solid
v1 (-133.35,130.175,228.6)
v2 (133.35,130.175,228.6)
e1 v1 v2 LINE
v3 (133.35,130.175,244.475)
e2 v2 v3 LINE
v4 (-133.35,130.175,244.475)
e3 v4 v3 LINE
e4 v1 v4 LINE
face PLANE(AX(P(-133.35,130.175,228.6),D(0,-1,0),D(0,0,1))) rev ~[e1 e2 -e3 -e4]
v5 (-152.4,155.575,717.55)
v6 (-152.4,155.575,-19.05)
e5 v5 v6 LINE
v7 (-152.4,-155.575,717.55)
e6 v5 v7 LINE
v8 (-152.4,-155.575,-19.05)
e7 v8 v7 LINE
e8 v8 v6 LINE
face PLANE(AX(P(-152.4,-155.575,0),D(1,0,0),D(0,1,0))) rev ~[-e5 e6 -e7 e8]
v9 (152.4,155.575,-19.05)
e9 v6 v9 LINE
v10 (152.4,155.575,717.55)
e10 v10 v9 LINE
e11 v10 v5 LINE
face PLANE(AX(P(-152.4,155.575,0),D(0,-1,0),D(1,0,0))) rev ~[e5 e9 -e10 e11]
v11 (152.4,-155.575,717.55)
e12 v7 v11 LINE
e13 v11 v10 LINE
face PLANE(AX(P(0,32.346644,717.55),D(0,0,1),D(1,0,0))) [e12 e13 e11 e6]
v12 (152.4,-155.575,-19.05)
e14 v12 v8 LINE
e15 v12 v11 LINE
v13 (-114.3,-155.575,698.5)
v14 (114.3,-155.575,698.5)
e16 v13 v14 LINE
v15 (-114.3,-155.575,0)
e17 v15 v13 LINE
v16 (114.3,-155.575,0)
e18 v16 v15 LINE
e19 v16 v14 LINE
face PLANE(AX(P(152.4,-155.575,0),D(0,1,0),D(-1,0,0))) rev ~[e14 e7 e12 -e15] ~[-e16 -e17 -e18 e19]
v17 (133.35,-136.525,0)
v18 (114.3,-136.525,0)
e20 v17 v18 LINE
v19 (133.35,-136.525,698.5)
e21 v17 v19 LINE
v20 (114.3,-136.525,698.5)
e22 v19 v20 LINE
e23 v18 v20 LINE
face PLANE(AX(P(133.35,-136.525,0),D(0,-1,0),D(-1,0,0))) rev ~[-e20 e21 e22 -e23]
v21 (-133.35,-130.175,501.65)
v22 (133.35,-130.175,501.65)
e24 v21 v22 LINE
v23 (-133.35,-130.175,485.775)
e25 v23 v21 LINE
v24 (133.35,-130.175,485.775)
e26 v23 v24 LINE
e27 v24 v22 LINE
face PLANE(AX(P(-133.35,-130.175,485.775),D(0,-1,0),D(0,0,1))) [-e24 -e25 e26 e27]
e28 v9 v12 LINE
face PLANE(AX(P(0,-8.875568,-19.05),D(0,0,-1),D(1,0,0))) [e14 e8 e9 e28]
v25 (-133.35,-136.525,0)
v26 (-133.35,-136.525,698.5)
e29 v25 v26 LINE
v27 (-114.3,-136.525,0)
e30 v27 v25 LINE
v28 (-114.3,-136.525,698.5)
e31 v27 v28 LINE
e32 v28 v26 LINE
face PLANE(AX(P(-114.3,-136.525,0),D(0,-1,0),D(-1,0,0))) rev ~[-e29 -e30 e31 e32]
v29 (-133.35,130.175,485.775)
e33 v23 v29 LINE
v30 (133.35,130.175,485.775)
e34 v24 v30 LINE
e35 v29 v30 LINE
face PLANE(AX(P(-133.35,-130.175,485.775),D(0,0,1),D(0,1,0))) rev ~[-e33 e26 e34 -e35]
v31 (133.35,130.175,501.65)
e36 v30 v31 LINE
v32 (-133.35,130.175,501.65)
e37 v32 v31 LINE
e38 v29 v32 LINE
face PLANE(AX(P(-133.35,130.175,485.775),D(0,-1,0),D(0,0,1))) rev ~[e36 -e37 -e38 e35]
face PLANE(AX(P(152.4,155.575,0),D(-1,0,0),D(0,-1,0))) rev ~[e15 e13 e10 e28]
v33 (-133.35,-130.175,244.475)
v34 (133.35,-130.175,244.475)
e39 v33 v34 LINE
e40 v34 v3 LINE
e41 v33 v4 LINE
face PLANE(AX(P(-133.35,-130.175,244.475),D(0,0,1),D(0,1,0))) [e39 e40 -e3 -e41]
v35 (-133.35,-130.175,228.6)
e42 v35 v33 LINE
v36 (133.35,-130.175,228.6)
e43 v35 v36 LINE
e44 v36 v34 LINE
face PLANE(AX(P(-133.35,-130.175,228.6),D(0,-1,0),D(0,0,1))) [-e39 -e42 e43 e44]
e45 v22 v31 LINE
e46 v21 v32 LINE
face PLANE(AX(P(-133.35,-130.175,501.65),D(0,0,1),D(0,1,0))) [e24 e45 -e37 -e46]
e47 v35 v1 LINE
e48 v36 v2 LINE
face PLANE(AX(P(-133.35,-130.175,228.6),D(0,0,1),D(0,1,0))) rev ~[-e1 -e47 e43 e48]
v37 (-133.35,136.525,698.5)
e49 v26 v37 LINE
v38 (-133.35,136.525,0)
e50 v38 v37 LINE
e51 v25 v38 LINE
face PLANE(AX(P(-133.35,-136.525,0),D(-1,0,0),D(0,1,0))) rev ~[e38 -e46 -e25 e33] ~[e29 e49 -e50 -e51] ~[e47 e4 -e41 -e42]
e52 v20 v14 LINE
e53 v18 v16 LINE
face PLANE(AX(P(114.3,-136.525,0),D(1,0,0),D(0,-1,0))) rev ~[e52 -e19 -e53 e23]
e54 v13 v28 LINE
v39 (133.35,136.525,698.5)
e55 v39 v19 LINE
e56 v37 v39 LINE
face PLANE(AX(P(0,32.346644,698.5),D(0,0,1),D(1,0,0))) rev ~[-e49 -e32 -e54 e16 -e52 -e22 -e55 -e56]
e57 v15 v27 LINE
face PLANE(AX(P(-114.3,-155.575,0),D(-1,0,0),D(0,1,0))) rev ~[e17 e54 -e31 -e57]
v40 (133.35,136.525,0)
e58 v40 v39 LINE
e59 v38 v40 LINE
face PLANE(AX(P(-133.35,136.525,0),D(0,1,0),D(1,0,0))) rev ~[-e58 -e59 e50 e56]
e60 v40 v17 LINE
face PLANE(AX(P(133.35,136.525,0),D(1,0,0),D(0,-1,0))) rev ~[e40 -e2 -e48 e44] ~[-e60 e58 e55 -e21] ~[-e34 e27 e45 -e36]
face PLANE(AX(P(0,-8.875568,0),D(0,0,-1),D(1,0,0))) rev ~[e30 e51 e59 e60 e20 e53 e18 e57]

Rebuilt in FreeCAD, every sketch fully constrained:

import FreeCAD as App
import Part
import Sketcher

V = App.Vector
Q = App.Units.Quantity

doc = App.newDocument("Part")
body = doc.addObject("PartDesign::Body", "Body")

# Sketch on XY plane
sketch1 = body.newObject("Sketcher::SketchObject", "Sketch")
sketch1.AttachmentSupport = (doc.getObject("XY_Plane"), [""])
sketch1.MapMode = "FlatFace"
sketch1.addGeometry(Part.LineSegment(V(-133, -137, 0), V(-133, 137, 0)), False)
sketch1.addGeometry(Part.LineSegment(V(-133, 137, 0), V(133, 137, 0)), False)
sketch1.addGeometry(Part.LineSegment(V(133, 137, 0), V(133, -137, 0)), False)
sketch1.addGeometry(Part.LineSegment(V(133, -137, 0), V(114, -137, 0)), False)
sketch1.addGeometry(Part.LineSegment(V(114, -137, 0), V(114, -156, 0)), False)
sketch1.addGeometry(Part.LineSegment(V(114, -156, 0), V(152, -156, 0)), False)
sketch1.addGeometry(Part.LineSegment(V(152, -156, 0), V(152, 156, 0)), False)
sketch1.addGeometry(Part.LineSegment(V(152, 156, 0), V(-152, 156, 0)), False)
sketch1.addGeometry(Part.LineSegment(V(-152, 156, 0), V(-152, -156, 0)), False)
sketch1.addGeometry(Part.LineSegment(V(-152, -156, 0), V(-114, -156, 0)), False)
sketch1.addGeometry(Part.LineSegment(V(-114, -156, 0), V(-114, -137, 0)), False)
sketch1.addGeometry(Part.LineSegment(V(-114, -137, 0), V(-133, -137, 0)), False)
sketch1.addConstraint(Sketcher.Constraint("Coincident", 0, 2, 1, 1))
sketch1.addConstraint(Sketcher.Constraint("Coincident", 1, 2, 2, 1))
sketch1.addConstraint(Sketcher.Constraint("Coincident", 2, 2, 3, 1))
sketch1.addConstraint(Sketcher.Constraint("Coincident", 3, 2, 4, 1))
sketch1.addConstraint(Sketcher.Constraint("Coincident", 4, 2, 5, 1))
sketch1.addConstraint(Sketcher.Constraint("Coincident", 5, 2, 6, 1))
sketch1.addConstraint(Sketcher.Constraint("Coincident", 6, 2, 7, 1))
sketch1.addConstraint(Sketcher.Constraint("Coincident", 7, 2, 8, 1))
sketch1.addConstraint(Sketcher.Constraint("Coincident", 8, 2, 9, 1))
sketch1.addConstraint(Sketcher.Constraint("Coincident", 9, 2, 10, 1))
sketch1.addConstraint(Sketcher.Constraint("Coincident", 10, 2, 11, 1))
sketch1.addConstraint(Sketcher.Constraint("Coincident", 11, 2, 0, 1))
sketch1.addConstraint(Sketcher.Constraint("Vertical", 0))
sketch1.addConstraint(Sketcher.Constraint("Horizontal", 1))
sketch1.addConstraint(Sketcher.Constraint("Vertical", 2))
sketch1.addConstraint(Sketcher.Constraint("Horizontal", 3))
sketch1.addConstraint(Sketcher.Constraint("Vertical", 4))
sketch1.addConstraint(Sketcher.Constraint("Horizontal", 5))
sketch1.addConstraint(Sketcher.Constraint("Vertical", 6))
sketch1.addConstraint(Sketcher.Constraint("Horizontal", 7))
sketch1.addConstraint(Sketcher.Constraint("Vertical", 8))
sketch1.addConstraint(Sketcher.Constraint("Horizontal", 9))
sketch1.addConstraint(Sketcher.Constraint("Vertical", 10))
sketch1.addConstraint(Sketcher.Constraint("Horizontal", 11))
sketch1.addConstraint(Sketcher.Constraint("Symmetric", 0, 2, 2, 2, -1, 1))
sketch1.addConstraint(Sketcher.Constraint("Symmetric", 5, 2, 7, 2, -1, 1))
sketch1.addConstraint(Sketcher.Constraint("Symmetric", 4, 2, 9, 2, -2))
sketch1.addConstraint(Sketcher.Constraint("Horizontal", 3, 2, 10, 2))
sketch1.addConstraint(Sketcher.Constraint("Equal", 11, 4))
sketch1.addConstraint(Sketcher.Constraint("DistanceX", 7, 2, 7, 1, Q("12 in")))
sketch1.addConstraint(Sketcher.Constraint("DistanceX", 1, 1, 1, 2, Q("10.5 in")))
sketch1.addConstraint(Sketcher.Constraint("DistanceX", 5, 1, 5, 2, Q("1.5 in")))
sketch1.addConstraint(Sketcher.Constraint("DistanceY", 0, 1, 0, 2, Q("10.75 in")))
pad1 = body.newObject("PartDesign::Pad", "Pad")
pad1.Profile = sketch1
pad1.Length = Q("27.5 in")

# Sketch on XY plane
sketch2 = body.newObject("Sketcher::SketchObject", "Sketch001")
sketch2.AttachmentSupport = (doc.getObject("XY_Plane"), [""])
sketch2.MapMode = "FlatFace"
sketch2.AttachmentOffset = App.Placement(V(0, 0, 27.5 * 25.4), App.Rotation())
sketch2.addGeometry(Part.LineSegment(V(152, 156, 0), V(-152, 156, 0)), False)
sketch2.addGeometry(Part.LineSegment(V(-152, 156, 0), V(-152, -156, 0)), False)
sketch2.addGeometry(Part.LineSegment(V(-152, -156, 0), V(152, -156, 0)), False)
sketch2.addGeometry(Part.LineSegment(V(152, -156, 0), V(152, 156, 0)), False)
sketch2.addConstraint(Sketcher.Constraint("Coincident", 0, 2, 1, 1))
sketch2.addConstraint(Sketcher.Constraint("Coincident", 1, 2, 2, 1))
sketch2.addConstraint(Sketcher.Constraint("Coincident", 2, 2, 3, 1))
sketch2.addConstraint(Sketcher.Constraint("Coincident", 3, 2, 0, 1))
sketch2.addConstraint(Sketcher.Constraint("Horizontal", 0))
sketch2.addConstraint(Sketcher.Constraint("Vertical", 1))
sketch2.addConstraint(Sketcher.Constraint("Horizontal", 2))
sketch2.addConstraint(Sketcher.Constraint("Vertical", 3))
sketch2.addConstraint(Sketcher.Constraint("Symmetric", 0, 2, 2, 2, -1, 1))
sketch2.addConstraint(Sketcher.Constraint("DistanceX", 0, 2, 0, 1, Q("12 in")))
sketch2.addConstraint(Sketcher.Constraint("DistanceY", 1, 2, 1, 1, Q("12.25 in")))
pad2 = body.newObject("PartDesign::Pad", "Pad001")
pad2.Profile = sketch2
pad2.Length = Q("0.75 in")

# Sketch on XY plane
sketch3 = body.newObject("Sketcher::SketchObject", "Sketch002")
sketch3.AttachmentSupport = (doc.getObject("XY_Plane"), [""])
sketch3.MapMode = "FlatFace"
sketch3.addGeometry(Part.LineSegment(V(-152, -156, 0), V(-152, 156, 0)), False)
sketch3.addGeometry(Part.LineSegment(V(-152, 156, 0), V(152, 156, 0)), False)
sketch3.addGeometry(Part.LineSegment(V(152, 156, 0), V(152, -156, 0)), False)
sketch3.addGeometry(Part.LineSegment(V(152, -156, 0), V(-152, -156, 0)), False)
sketch3.addConstraint(Sketcher.Constraint("Coincident", 0, 2, 1, 1))
sketch3.addConstraint(Sketcher.Constraint("Coincident", 1, 2, 2, 1))
sketch3.addConstraint(Sketcher.Constraint("Coincident", 2, 2, 3, 1))
sketch3.addConstraint(Sketcher.Constraint("Coincident", 3, 2, 0, 1))
sketch3.addConstraint(Sketcher.Constraint("Vertical", 0))
sketch3.addConstraint(Sketcher.Constraint("Horizontal", 1))
sketch3.addConstraint(Sketcher.Constraint("Vertical", 2))
sketch3.addConstraint(Sketcher.Constraint("Horizontal", 3))
sketch3.addConstraint(Sketcher.Constraint("Symmetric", 0, 2, 2, 2, -1, 1))
sketch3.addConstraint(Sketcher.Constraint("DistanceX", 1, 1, 1, 2, Q("12 in")))
sketch3.addConstraint(Sketcher.Constraint("DistanceY", 0, 1, 0, 2, Q("12.25 in")))
pad3 = body.newObject("PartDesign::Pad", "Pad002")
pad3.Profile = sketch3
pad3.Length = Q("0.75 in")
pad3.Reversed = True

# Sketch on YZ plane
sketch4 = body.newObject("Sketcher::SketchObject", "Sketch003")
sketch4.AttachmentSupport = (doc.getObject("YZ_Plane"), [""])
sketch4.MapMode = "FlatFace"
sketch4.AttachmentOffset = App.Placement(V(0, 0, -5.25 * 25.4), App.Rotation())
sketch4.addGeometry(Part.LineSegment(V(-130, 502, 0), V(-130, 486, 0)), False)
sketch4.addGeometry(Part.LineSegment(V(-130, 486, 0), V(130, 486, 0)), False)
sketch4.addGeometry(Part.LineSegment(V(130, 486, 0), V(130, 502, 0)), False)
sketch4.addGeometry(Part.LineSegment(V(130, 502, 0), V(-130, 502, 0)), False)
sketch4.addGeometry(Part.LineSegment(V(-130, 244, 0), V(-130, 229, 0)), False)
sketch4.addGeometry(Part.LineSegment(V(-130, 229, 0), V(130, 229, 0)), False)
sketch4.addGeometry(Part.LineSegment(V(130, 229, 0), V(130, 244, 0)), False)
sketch4.addGeometry(Part.LineSegment(V(130, 244, 0), V(-130, 244, 0)), False)
sketch4.addConstraint(Sketcher.Constraint("Coincident", 0, 2, 1, 1))
sketch4.addConstraint(Sketcher.Constraint("Coincident", 1, 2, 2, 1))
sketch4.addConstraint(Sketcher.Constraint("Coincident", 2, 2, 3, 1))
sketch4.addConstraint(Sketcher.Constraint("Coincident", 3, 2, 0, 1))
sketch4.addConstraint(Sketcher.Constraint("Coincident", 4, 2, 5, 1))
sketch4.addConstraint(Sketcher.Constraint("Coincident", 5, 2, 6, 1))
sketch4.addConstraint(Sketcher.Constraint("Coincident", 6, 2, 7, 1))
sketch4.addConstraint(Sketcher.Constraint("Coincident", 7, 2, 4, 1))
sketch4.addConstraint(Sketcher.Constraint("Vertical", 0))
sketch4.addConstraint(Sketcher.Constraint("Horizontal", 1))
sketch4.addConstraint(Sketcher.Constraint("Vertical", 2))
sketch4.addConstraint(Sketcher.Constraint("Horizontal", 3))
sketch4.addConstraint(Sketcher.Constraint("Vertical", 4))
sketch4.addConstraint(Sketcher.Constraint("Horizontal", 5))
sketch4.addConstraint(Sketcher.Constraint("Vertical", 6))
sketch4.addConstraint(Sketcher.Constraint("Horizontal", 7))
sketch4.addConstraint(Sketcher.Constraint("Vertical", 3, 2, 4, 2))
sketch4.addConstraint(Sketcher.Constraint("Vertical", 2, 2, 5, 2))
sketch4.addConstraint(Sketcher.Constraint("Equal", 2, 4))
sketch4.addConstraint(Sketcher.Constraint("DistanceY", -1, 1, 4, 2, Q("9 in")))
sketch4.addConstraint(Sketcher.Constraint("DistanceX", 1, 1, 1, 2, Q("10.25 in")))
sketch4.addConstraint(Sketcher.Constraint("DistanceY", 6, 2, 1, 2, Q("9.5 in")))
sketch4.addConstraint(Sketcher.Constraint("DistanceY", 0, 2, 0, 1, Q("0.625 in")))
sketch4.addConstraint(Sketcher.Constraint("DistanceX", 0, 2, -1, 1, Q("5.125 in")))
pad4 = body.newObject("PartDesign::Pad", "Pad003")
pad4.Profile = sketch4
pad4.Type = "UpToLast"

doc.recompute()
